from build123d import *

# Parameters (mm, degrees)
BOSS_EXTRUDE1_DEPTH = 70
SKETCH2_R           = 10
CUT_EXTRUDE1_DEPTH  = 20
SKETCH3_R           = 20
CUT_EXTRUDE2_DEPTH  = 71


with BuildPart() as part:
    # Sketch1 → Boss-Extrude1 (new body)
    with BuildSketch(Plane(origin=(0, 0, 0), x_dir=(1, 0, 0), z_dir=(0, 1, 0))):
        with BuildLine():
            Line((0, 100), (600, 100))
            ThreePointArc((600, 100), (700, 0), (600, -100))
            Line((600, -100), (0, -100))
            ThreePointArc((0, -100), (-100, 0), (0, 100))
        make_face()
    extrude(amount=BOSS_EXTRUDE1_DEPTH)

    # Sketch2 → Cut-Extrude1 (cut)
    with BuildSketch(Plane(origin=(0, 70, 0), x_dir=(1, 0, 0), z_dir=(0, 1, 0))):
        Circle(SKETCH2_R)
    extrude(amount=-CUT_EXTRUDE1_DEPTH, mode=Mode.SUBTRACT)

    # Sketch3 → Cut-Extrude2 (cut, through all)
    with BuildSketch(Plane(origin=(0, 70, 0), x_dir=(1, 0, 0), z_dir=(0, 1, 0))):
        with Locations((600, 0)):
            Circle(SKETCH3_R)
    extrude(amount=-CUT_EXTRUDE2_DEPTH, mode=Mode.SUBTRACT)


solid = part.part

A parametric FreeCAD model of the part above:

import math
import FreeCAD as App
import Part
import Sketcher

doc = App.newDocument("Part")
body = doc.addObject("PartDesign::Body", "Body")

# Sketch on XZ plane
sketch1 = doc.addObject("Sketcher::SketchObject", "Sketch")
body.addObject(sketch1)
sketch1.AttachmentSupport = (doc.XZ_Plane, [""])
sketch1.MapMode = "FlatFace"
sketch1.addGeometry(Part.LineSegment(App.Vector(600, -100, 0), App.Vector(0, -100, 0)), False)
sketch1.addGeometry(Part.ArcOfCircle(Part.Circle(App.Vector(0, 0, 0), App.Vector(0, 0, 1), 100), math.radians(90), math.radians(270)), False)
sketch1.addGeometry(Part.LineSegment(App.Vector(0, 100, 0), App.Vector(600, 100, 0)), False)
sketch1.addGeometry(Part.ArcOfCircle(Part.Circle(App.Vector(600, 0, 0), App.Vector(0, 0, 1), 100), math.radians(-90), math.radians(90)), False)
sketch1.addConstraint(Sketcher.Constraint("Tangent", 0, 2, 1, 2))
sketch1.addConstraint(Sketcher.Constraint("Tangent", 1, 1, 2, 1))
sketch1.addConstraint(Sketcher.Constraint("Tangent", 2, 2, 3, 2))
sketch1.addConstraint(Sketcher.Constraint("Tangent", 3, 1, 0, 1))
sketch1.addConstraint(Sketcher.Constraint("Horizontal", 0))
sketch1.addConstraint(Sketcher.Constraint("Horizontal", 2))
sketch1.addConstraint(Sketcher.Constraint("Coincident", 1, 3, -1, 1))
sketch1.addConstraint(Sketcher.Constraint("Radius", 1, 100.0))
sketch1.addConstraint(Sketcher.Constraint("DistanceX", 0, 2, 0, 1, 600.0))
pad1 = doc.addObject("PartDesign::Pad", "Pad")
body.addObject(pad1)
pad1.Profile = sketch1
pad1.Length = 70
pad1.Reversed = True

# Sketch on XZ plane
sketch2 = doc.addObject("Sketcher::SketchObject", "Sketch001")
body.addObject(sketch2)
sketch2.AttachmentSupport = (doc.XZ_Plane, [""])
sketch2.MapMode = "FlatFace"
sketch2.AttachmentOffset = App.Placement(App.Vector(0, 0, -70), App.Rotation())
sketch2.addGeometry(Part.Circle(App.Vector(0, 0, 0), App.Vector(0, 0, 1), 10), False)
sketch2.addConstraint(Sketcher.Constraint("Coincident", 0, 3, -1, 1))
sketch2.addConstraint(Sketcher.Constraint("Diameter", 0, 20.0))
pocket1 = doc.addObject("PartDesign::Pocket", "Pocket")
body.addObject(pocket1)
pocket1.Profile = sketch2
pocket1.Length = 20
pocket1.Reversed = True

# Sketch on XZ plane
sketch3 = doc.addObject("Sketcher::SketchObject", "Sketch002")
body.addObject(sketch3)
sketch3.AttachmentSupport = (doc.XZ_Plane, [""])
sketch3.MapMode = "FlatFace"
sketch3.AttachmentOffset = App.Placement(App.Vector(0, 0, -70), App.Rotation())
sketch3.addGeometry(Part.Circle(App.Vector(600, 0, 0), App.Vector(0, 0, 1), 20), False)
sketch3.addConstraint(Sketcher.Constraint("PointOnObject", 0, 3, -1))
sketch3.addConstraint(Sketcher.Constraint("Diameter", 0, 40.0))
sketch3.addConstraint(Sketcher.Constraint("DistanceX", -1, 1, 0, 3, 600.0))
pocket2 = doc.addObject("PartDesign::Pocket", "Pocket001")
body.addObject(pocket2)
pocket2.Profile = sketch3
pocket2.Type = "ThroughAll"
pocket2.Reversed = True

doc.recompute()
